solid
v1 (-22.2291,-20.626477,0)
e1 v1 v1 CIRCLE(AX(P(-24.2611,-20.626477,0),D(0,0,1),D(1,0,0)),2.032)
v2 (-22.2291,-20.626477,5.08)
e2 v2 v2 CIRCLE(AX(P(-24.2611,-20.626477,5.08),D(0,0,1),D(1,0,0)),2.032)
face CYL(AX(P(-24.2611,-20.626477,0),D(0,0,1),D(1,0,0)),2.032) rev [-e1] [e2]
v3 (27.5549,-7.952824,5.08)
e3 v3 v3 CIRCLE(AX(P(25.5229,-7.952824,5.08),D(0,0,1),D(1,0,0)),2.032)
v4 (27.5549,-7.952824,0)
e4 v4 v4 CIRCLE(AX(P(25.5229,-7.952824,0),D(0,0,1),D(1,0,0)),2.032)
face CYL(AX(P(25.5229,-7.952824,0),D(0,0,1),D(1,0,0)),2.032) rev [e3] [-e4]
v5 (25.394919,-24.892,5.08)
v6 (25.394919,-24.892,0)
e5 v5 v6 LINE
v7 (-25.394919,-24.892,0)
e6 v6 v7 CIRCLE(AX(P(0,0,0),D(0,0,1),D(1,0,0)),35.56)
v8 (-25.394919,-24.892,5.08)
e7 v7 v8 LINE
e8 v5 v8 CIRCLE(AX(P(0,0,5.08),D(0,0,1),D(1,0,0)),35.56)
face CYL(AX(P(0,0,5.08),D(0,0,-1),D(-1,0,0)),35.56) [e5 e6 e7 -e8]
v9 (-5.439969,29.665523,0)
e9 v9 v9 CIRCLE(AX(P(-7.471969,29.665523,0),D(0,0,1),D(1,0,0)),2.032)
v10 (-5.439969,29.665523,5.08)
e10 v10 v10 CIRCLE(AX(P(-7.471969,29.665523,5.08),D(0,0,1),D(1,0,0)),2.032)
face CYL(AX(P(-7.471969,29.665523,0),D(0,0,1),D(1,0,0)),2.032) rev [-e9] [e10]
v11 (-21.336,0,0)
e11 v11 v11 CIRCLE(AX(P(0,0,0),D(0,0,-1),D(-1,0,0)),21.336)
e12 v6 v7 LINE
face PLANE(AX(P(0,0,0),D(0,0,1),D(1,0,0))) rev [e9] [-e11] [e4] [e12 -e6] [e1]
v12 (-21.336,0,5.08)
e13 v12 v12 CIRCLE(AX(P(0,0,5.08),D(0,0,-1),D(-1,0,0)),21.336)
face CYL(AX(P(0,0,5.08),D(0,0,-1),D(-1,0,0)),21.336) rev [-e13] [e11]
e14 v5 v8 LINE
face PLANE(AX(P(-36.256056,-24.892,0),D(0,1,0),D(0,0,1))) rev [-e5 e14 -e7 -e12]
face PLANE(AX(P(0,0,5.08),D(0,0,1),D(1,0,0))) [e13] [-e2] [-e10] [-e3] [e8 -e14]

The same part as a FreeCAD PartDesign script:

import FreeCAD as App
import Part
import Sketcher

V = App.Vector
Q = App.Units.Quantity

doc = App.newDocument("Part")
params = doc.addObject("Spreadsheet::Sheet", "Params")
for row, (alias, value) in enumerate([
    ("sketch1_diameter", "2.8 in"),
    ("pad1_length", "0.2 in"),
    ("sketch2_height", "0.42 in"),
    ("sketch3_diameter", "0.16 in"),
    ("sketch4_diameter", "1.68 in"),
], start=1):
    params.set(f"A{row}", alias)
    params.set(f"B{row}", "=" + value)
    params.setAlias(f"B{row}", alias)

body = doc.addObject("PartDesign::Body", "Body")

# Sketch on XY plane
sketch1 = doc.addObject("Sketcher::SketchObject", "Sketch")
body.addObject(sketch1)
sketch1.AttachmentSupport = (doc.XY_Plane, [""])
sketch1.MapMode = "FlatFace"
sketch1.addGeometry(Part.Circle(V(0, 0, 0), V(0, 0, 1), 35.56), False)
sketch1.addConstraint(Sketcher.Constraint("Coincident", 0, 3, -1, 1))
sketch1.addConstraint(Sketcher.Constraint("Diameter", 0, Q("2.8 in")))
sketch1.setExpression("Constraints[1]", "Params.sketch1_diameter")
pad1 = doc.addObject("PartDesign::Pad", "Pad")
body.addObject(pad1)
pad1.Profile = sketch1
pad1.setExpression("Length", "Params.pad1_length")

# Sketch on XY plane
sketch2 = doc.addObject("Sketcher::SketchObject", "Sketch001")
body.addObject(sketch2)
sketch2.AttachmentSupport = (doc.XY_Plane, [""])
sketch2.MapMode = "FlatFace"
sketch2.AttachmentOffset = App.Placement(V(0, 0, 0.2 * 25.4), App.Rotation())
sketch2.addGeometry(Part.LineSegment(V(-36.256056, -35.56, 0), V(33.750359, -35.56, 0)), False)
sketch2.addGeometry(Part.LineSegment(V(33.750359, -35.56, 0), V(33.750359, -24.892, 0)), False)
sketch2.addGeometry(Part.LineSegment(V(33.750359, -24.892, 0), V(-36.256056, -24.892, 0)), False)
sketch2.addGeometry(Part.LineSegment(V(-36.256056, -24.892, 0), V(-36.256056, -35.56, 0)), False)
sketch2.addConstraint(Sketcher.Constraint("Coincident", 0, 2, 1, 1))
sketch2.addConstraint(Sketcher.Constraint("Coincident", 1, 2, 2, 1))
sketch2.addConstraint(Sketcher.Constraint("Coincident", 2, 2, 3, 1))
sketch2.addConstraint(Sketcher.Constraint("Coincident", 3, 2, 0, 1))
sketch2.addConstraint(Sketcher.Constraint("Horizontal", 0))
sketch2.addConstraint(Sketcher.Constraint("Vertical", 1))
sketch2.addConstraint(Sketcher.Constraint("Horizontal", 2))
sketch2.addConstraint(Sketcher.Constraint("Vertical", 3))
sketch2.addConstraint(Sketcher.Constraint("DistanceY", 1, 1, 1, 2, Q("0.42 in")))
sketch2.addConstraint(Sketcher.Constraint("DistanceY", 0, 2, -1, 1, Q("1.4 in")))
sketch2.addConstraint(Sketcher.Constraint("DistanceX", 0, 1, 0, 2, Q("70.006414 mm")))
sketch2.addConstraint(Sketcher.Constraint("DistanceX", -1, 1, 0, 2, Q("33.750359 mm")))
sketch2.setExpression("Constraints[8]", "Params.sketch2_height")
pocket1 = doc.addObject("PartDesign::Pocket", "Pocket")
body.addObject(pocket1)
pocket1.Profile = sketch2
pocket1.Type = "ThroughAll"

# Sketch on XY plane
sketch3 = doc.addObject("Sketcher::SketchObject", "Sketch002")
body.addObject(sketch3)
sketch3.AttachmentSupport = (doc.XY_Plane, [""])
sketch3.MapMode = "FlatFace"
sketch3.AttachmentOffset = App.Placement(V(0, 0, 0.2 * 25.4), App.Rotation())
sketch3.addGeometry(Part.Circle(V(-24.2611, -20.626477, 0), V(0, 0, 1), 2.032), False)
sketch3.addGeometry(Part.Circle(V(-7.471969, 29.665523, 0), V(0, 0, 1), 2.032), False)
sketch3.addGeometry(Part.Circle(V(25.5229, -7.952824, 0), V(0, 0, 1), 2.032), False)
sketch3.addConstraint(Sketcher.Constraint("Equal", 0, 1))
sketch3.addConstraint(Sketcher.Constraint("Equal", 1, 2))
sketch3.addConstraint(Sketcher.Constraint("Diameter", 0, Q("0.16 in")))
sketch3.addConstraint(Sketcher.Constraint("DistanceY", 0, 3, 1, 3, Q("1.98 in")))
sketch3.addConstraint(Sketcher.Constraint("DistanceX", 0, 3, 2, 3, Q("1.96 in")))
sketch3.addConstraint(Sketcher.Constraint("DistanceX", 0, 3, -1, 1, Q("24.2611 mm")))
sketch3.addConstraint(Sketcher.Constraint("DistanceX", 1, 3, -1, 1, Q("7.471969 mm")))
sketch3.addConstraint(Sketcher.Constraint("DistanceY", 0, 3, -1, 1, Q("20.626477 mm")))
sketch3.addConstraint(Sketcher.Constraint("DistanceY", 2, 3, -1, 1, Q("7.952824 mm")))
sketch3.setExpression("Constraints[2]", "Params.sketch3_diameter")
pocket2 = doc.addObject("PartDesign::Pocket", "Pocket001")
body.addObject(pocket2)
pocket2.Profile = sketch3
pocket2.Type = "ThroughAll"

# Sketch on XY plane
sketch4 = doc.addObject("Sketcher::SketchObject", "Sketch003")
body.addObject(sketch4)
sketch4.AttachmentSupport = (doc.XY_Plane, [""])
sketch4.MapMode = "FlatFace"
sketch4.addGeometry(Part.Circle(V(0, 0, 0), V(0, 0, 1), 21.336), False)
sketch4.addConstraint(Sketcher.Constraint("Coincident", 0, 3, -1, 1))
sketch4.addConstraint(Sketcher.Constraint("Diameter", 0, Q("1.68 in")))
sketch4.setExpression("Constraints[1]", "Params.sketch4_diameter")
pocket3 = doc.addObject("PartDesign::Pocket", "Pocket002")
body.addObject(pocket3)
pocket3.Profile = sketch4
pocket3.Type = "ThroughAll"
pocket3.Reversed = True

doc.recompute()
